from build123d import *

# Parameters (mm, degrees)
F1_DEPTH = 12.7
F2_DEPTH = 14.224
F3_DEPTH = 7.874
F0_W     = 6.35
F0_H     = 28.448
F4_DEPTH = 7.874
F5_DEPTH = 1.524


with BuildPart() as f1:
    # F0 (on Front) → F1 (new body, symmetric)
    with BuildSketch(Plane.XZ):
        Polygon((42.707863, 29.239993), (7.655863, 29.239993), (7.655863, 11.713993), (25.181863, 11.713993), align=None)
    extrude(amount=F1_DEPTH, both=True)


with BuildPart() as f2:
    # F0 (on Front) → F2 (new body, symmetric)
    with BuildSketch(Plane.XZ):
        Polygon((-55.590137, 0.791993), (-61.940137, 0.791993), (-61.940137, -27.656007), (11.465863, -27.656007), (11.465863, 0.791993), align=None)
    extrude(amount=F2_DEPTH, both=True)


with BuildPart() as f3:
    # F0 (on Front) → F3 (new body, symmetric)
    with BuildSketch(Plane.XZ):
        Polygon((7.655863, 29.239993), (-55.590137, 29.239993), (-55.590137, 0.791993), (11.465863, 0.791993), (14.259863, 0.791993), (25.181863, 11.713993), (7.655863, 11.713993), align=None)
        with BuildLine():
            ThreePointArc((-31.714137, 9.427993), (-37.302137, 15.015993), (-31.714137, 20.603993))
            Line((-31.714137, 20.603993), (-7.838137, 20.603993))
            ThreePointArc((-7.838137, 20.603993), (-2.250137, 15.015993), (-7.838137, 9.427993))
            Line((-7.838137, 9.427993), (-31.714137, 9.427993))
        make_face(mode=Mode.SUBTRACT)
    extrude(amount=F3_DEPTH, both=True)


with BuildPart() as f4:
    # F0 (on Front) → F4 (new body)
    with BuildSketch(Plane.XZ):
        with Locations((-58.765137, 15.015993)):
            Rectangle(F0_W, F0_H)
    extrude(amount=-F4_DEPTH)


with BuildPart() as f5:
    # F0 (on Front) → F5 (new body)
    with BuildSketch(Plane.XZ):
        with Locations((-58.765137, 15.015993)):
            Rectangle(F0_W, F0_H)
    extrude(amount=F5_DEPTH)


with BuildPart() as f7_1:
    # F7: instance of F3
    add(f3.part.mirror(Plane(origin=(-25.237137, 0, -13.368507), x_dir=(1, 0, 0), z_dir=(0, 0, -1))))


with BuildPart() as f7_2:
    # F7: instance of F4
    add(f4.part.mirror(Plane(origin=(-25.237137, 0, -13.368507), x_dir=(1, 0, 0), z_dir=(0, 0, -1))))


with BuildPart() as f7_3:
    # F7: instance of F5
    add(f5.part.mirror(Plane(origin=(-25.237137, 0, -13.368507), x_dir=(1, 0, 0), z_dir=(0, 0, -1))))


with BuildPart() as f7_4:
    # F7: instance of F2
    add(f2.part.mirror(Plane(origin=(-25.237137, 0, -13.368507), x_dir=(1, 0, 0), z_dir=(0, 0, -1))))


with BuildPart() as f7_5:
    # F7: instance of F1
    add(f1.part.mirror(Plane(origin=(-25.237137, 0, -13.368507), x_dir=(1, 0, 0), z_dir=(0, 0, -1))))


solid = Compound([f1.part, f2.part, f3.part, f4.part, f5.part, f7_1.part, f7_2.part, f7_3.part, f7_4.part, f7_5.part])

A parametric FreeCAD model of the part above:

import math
import FreeCAD as App
import Part
import Sketcher
Q = App.Units.Quantity


def add_polygon(sketch, points):
    """Adds a closed chain of lines whose ends are joined by coincident constraints."""
    first, n = sketch.GeometryCount, len(points)
    for a, b in zip(points, points[1:] + points[:1]):
        sketch.addGeometry(Part.LineSegment(App.Vector(*a, 0), App.Vector(*b, 0)), False)
    for i in range(n):
        sketch.addConstraint(Sketcher.Constraint("Coincident", first + i, 2, first + (i + 1) % n, 1))

doc = App.newDocument("Part")
body = doc.addObject("PartDesign::Body", "Body")

# Sketch on XZ plane
sketch1 = body.newObject("Sketcher::SketchObject", "Sketch")
sketch1.AttachmentSupport = (doc.getObject("XZ_Plane"), [""])
sketch1.MapMode = "FlatFace"
add_polygon(sketch1, [(43, 29), (8, 29), (8, 12), (25, 12)])  # lines 0-3
sketch1.addConstraint(Sketcher.Constraint("Horizontal", 0))
sketch1.addConstraint(Sketcher.Constraint("Vertical", 1))
sketch1.addConstraint(Sketcher.Constraint("Horizontal", 2))
sketch1.addConstraint(Sketcher.Constraint("Equal", 2, 1))
sketch1.addConstraint(Sketcher.Constraint("Angle", 3, Q("45 deg")))
sketch1.addConstraint(Sketcher.Constraint("DistanceX", 0, 2, 0, 1, Q("1.38 in")))
sketch1.addConstraint(Sketcher.Constraint("DistanceX", -1, 1, 0, 2, Q("7.655863 mm")))
sketch1.addConstraint(Sketcher.Constraint("DistanceY", -1, 1, 0, 2, Q("29.239993 mm")))
pad1 = body.newObject("PartDesign::Pad", "Pad")
pad1.Profile = sketch1
pad1.Length = Q("1 in")
pad1.Midplane = True
body2 = doc.addObject("PartDesign::Body", "Body001")

# Sketch on XZ plane
sketch2 = body2.newObject("Sketcher::SketchObject", "Sketch001")
sketch2.AttachmentSupport = (doc.getObject("XZ_Plane001"), [""])
sketch2.MapMode = "FlatFace"
add_polygon(sketch2, [(-62, 1), (-62, -28), (11, -28), (11, 1)])  # lines 0-3
sketch2.addConstraint(Sketcher.Constraint("Vertical", 0))
sketch2.addConstraint(Sketcher.Constraint("Horizontal", 1))
sketch2.addConstraint(Sketcher.Constraint("Vertical", 2))
sketch2.addConstraint(Sketcher.Constraint("Horizontal", 3))
sketch2.addConstraint(Sketcher.Constraint("DistanceX", 1, 1, 1, 2, Q("2.89 in")))
sketch2.addConstraint(Sketcher.Constraint("DistanceY", 0, 2, 0, 1, Q("1.12 in")))
sketch2.addConstraint(Sketcher.Constraint("DistanceX", 0, 2, -1, 1, Q("61.940137 mm")))
sketch2.addConstraint(Sketcher.Constraint("DistanceY", 0, 2, -1, 1, Q("27.656007 mm")))
pad2 = body2.newObject("PartDesign::Pad", "Pad001")
pad2.Profile = sketch2
pad2.Length = Q("1.12 in")
pad2.Midplane = True
body3 = doc.addObject("PartDesign::Body", "Body002")

# Sketch on XZ plane
sketch3 = body3.newObject("Sketcher::SketchObject", "Sketch002")
sketch3.AttachmentSupport = (doc.getObject("XZ_Plane002"), [""])
sketch3.MapMode = "FlatFace"
add_polygon(sketch3, [(8, 29), (-56, 29), (-56, 1), (14, 1), (25, 12), (8, 12)])  # lines 0-5
sketch3.addGeometry(Part.LineSegment(App.Vector(-8, 9, 0), App.Vector(-32, 9, 0)), False)  # 6
sketch3.addGeometry(Part.ArcOfCircle(Part.Circle(App.Vector(-32, 15, 0), App.Vector(0, 0, 1), 6), math.radians(90), math.radians(270)), False)  # 7
sketch3.addGeometry(Part.LineSegment(App.Vector(-32, 21, 0), App.Vector(-8, 21, 0)), False)  # 8
sketch3.addGeometry(Part.ArcOfCircle(Part.Circle(App.Vector(-8, 15, 0), App.Vector(0, 0, 1), 6), math.radians(-90), math.radians(90)), False)  # 9
sketch3.addConstraint(Sketcher.Constraint("Tangent", 6, 2, 7, 2))
sketch3.addConstraint(Sketcher.Constraint("Tangent", 7, 1, 8, 1))
sketch3.addConstraint(Sketcher.Constraint("Tangent", 8, 2, 9, 2))
sketch3.addConstraint(Sketcher.Constraint("Tangent", 9, 1, 6, 1))
sketch3.addConstraint(Sketcher.Constraint("Horizontal", 0))
sketch3.addConstraint(Sketcher.Constraint("Vertical", 1))
sketch3.addConstraint(Sketcher.Constraint("Horizontal", 2))
sketch3.addConstraint(Sketcher.Constraint("Horizontal", 4))
sketch3.addConstraint(Sketcher.Constraint("Vertical", 5))
sketch3.addConstraint(Sketcher.Constraint("Horizontal", 6))
sketch3.addConstraint(Sketcher.Constraint("Horizontal", 8))
sketch3.addConstraint(Sketcher.Constraint("Equal", 4, 5))
sketch3.addConstraint(Sketcher.Constraint("Radius", 7, Q("0.22 in")))
sketch3.addConstraint(Sketcher.Constraint("Angle", 3, Q("45 deg")))
sketch3.addConstraint(Sketcher.Constraint("DistanceX", 0, 2, 0, 1, Q("2.49 in")))
sketch3.addConstraint(Sketcher.Constraint("DistanceX", 2, 1, 2, 2, Q("2.75 in")))
sketch3.addConstraint(Sketcher.Constraint("DistanceX", 4, 2, 4, 1, Q("0.69 in")))
sketch3.addConstraint(Sketcher.Constraint("DistanceX", 6, 2, 6, 1, Q("0.94 in")))
sketch3.addConstraint(Sketcher.Constraint("DistanceX", 9, 3, 3, 2, Q("1.3 in")))
sketch3.addConstraint(Sketcher.Constraint("DistanceY", 7, 3, 0, 2, Q("0.56 in")))
sketch3.addConstraint(Sketcher.Constraint("DistanceX", 7, 3, -1, 1, Q("31.714137 mm")))
sketch3.addConstraint(Sketcher.Constraint("DistanceY", -1, 1, 7, 3, Q("15.015993 mm")))
pad3 = body3.newObject("PartDesign::Pad", "Pad002")
pad3.Profile = sketch3
pad3.Length = Q("0.62 in")
pad3.Midplane = True
body4 = doc.addObject("PartDesign::Body", "Body003")

# Sketch on XZ plane
sketch4 = body4.newObject("Sketcher::SketchObject", "Sketch003")
sketch4.AttachmentSupport = (doc.getObject("XZ_Plane003"), [""])
sketch4.MapMode = "FlatFace"
add_polygon(sketch4, [(-62, 29), (-62, 1), (-56, 1), (-56, 29)])  # lines 0-3
sketch4.addConstraint(Sketcher.Constraint("Vertical", 0))
sketch4.addConstraint(Sketcher.Constraint("Horizontal", 1))
sketch4.addConstraint(Sketcher.Constraint("Vertical", 2))
sketch4.addConstraint(Sketcher.Constraint("Horizontal", 3))
sketch4.addConstraint(Sketcher.Constraint("DistanceX", 1, 1, 1, 2, Q("0.25 in")))
sketch4.addConstraint(Sketcher.Constraint("DistanceY", 0, 2, 0, 1, Q("1.12 in")))
sketch4.addConstraint(Sketcher.Constraint("DistanceX", 0, 2, -1, 1, Q("61.940137 mm")))
sketch4.addConstraint(Sketcher.Constraint("DistanceY", -1, 1, 0, 2, Q("0.791993 mm")))
pad4 = body4.newObject("PartDesign::Pad", "Pad003")
pad4.Profile = sketch4
pad4.Length = Q("0.31 in")
pad4.Reversed = True
body5 = doc.addObject("PartDesign::Body", "Body004")

# Sketch on XZ plane
sketch5 = body5.newObject("Sketcher::SketchObject", "Sketch004")
sketch5.AttachmentSupport = (doc.getObject("XZ_Plane004"), [""])
sketch5.MapMode = "FlatFace"
add_polygon(sketch5, [(-62, 29), (-62, 1), (-56, 1), (-56, 29)])  # lines 0-3
sketch5.addConstraint(Sketcher.Constraint("Vertical", 0))
sketch5.addConstraint(Sketcher.Constraint("Horizontal", 1))
sketch5.addConstraint(Sketcher.Constraint("Vertical", 2))
sketch5.addConstraint(Sketcher.Constraint("Horizontal", 3))
sketch5.addConstraint(Sketcher.Constraint("DistanceX", 1, 1, 1, 2, Q("0.25 in")))
sketch5.addConstraint(Sketcher.Constraint("DistanceY", 0, 2, 0, 1, Q("1.12 in")))
sketch5.addConstraint(Sketcher.Constraint("DistanceX", 0, 2, -1, 1, Q("61.940137 mm")))
sketch5.addConstraint(Sketcher.Constraint("DistanceY", -1, 1, 0, 2, Q("0.791993 mm")))
pad5 = body5.newObject("PartDesign::Pad", "Pad004")
pad5.Profile = sketch5
pad5.Length = Q("0.06 in")
body6 = doc.addObject("PartDesign::Body", "Body005")
doc.recompute()

mirroring = doc.addObject("Part::Mirroring", "Mirroring")
mirroring.Source = body3
mirroring.Base = App.Vector(-25.237137, 0, -13.368507)
mirroring.Normal = App.Vector(0, 0, -1)
body6.BaseFeature = mirroring
doc.recompute()
body7 = doc.addObject("PartDesign::Body", "Body006")
doc.recompute()

mirroring2 = doc.addObject("Part::Mirroring", "Mirroring001")
mirroring2.Source = body4
mirroring2.Base = App.Vector(-25.237137, 0, -13.368507)
mirroring2.Normal = App.Vector(0, 0, -1)
body7.BaseFeature = mirroring2
doc.recompute()
body8 = doc.addObject("PartDesign::Body", "Body007")
doc.recompute()

mirroring3 = doc.addObject("Part::Mirroring", "Mirroring002")
mirroring3.Source = body5
mirroring3.Base = App.Vector(-25.237137, 0, -13.368507)
mirroring3.Normal = App.Vector(0, 0, -1)
body8.BaseFeature = mirroring3
doc.recompute()
body9 = doc.addObject("PartDesign::Body", "Body008")
doc.recompute()

mirroring4 = doc.addObject("Part::Mirroring", "Mirroring003")
mirroring4.Source = body2
mirroring4.Base = App.Vector(-25.237137, 0, -13.368507)
mirroring4.Normal = App.Vector(0, 0, -1)
body9.BaseFeature = mirroring4
doc.recompute()
body10 = doc.addObject("PartDesign::Body", "Body009")
doc.recompute()

mirroring5 = doc.addObject("Part::Mirroring", "Mirroring004")
mirroring5.Source = body
mirroring5.Base = App.Vector(-25.237137, 0, -13.368507)
mirroring5.Normal = App.Vector(0, 0, -1)
body10.BaseFeature = mirroring5
doc.recompute()
mirroring.Visibility = False
mirroring2.Visibility = False
mirroring3.Visibility = False
mirroring4.Visibility = False
mirroring5.Visibility = False

doc.recompute()
